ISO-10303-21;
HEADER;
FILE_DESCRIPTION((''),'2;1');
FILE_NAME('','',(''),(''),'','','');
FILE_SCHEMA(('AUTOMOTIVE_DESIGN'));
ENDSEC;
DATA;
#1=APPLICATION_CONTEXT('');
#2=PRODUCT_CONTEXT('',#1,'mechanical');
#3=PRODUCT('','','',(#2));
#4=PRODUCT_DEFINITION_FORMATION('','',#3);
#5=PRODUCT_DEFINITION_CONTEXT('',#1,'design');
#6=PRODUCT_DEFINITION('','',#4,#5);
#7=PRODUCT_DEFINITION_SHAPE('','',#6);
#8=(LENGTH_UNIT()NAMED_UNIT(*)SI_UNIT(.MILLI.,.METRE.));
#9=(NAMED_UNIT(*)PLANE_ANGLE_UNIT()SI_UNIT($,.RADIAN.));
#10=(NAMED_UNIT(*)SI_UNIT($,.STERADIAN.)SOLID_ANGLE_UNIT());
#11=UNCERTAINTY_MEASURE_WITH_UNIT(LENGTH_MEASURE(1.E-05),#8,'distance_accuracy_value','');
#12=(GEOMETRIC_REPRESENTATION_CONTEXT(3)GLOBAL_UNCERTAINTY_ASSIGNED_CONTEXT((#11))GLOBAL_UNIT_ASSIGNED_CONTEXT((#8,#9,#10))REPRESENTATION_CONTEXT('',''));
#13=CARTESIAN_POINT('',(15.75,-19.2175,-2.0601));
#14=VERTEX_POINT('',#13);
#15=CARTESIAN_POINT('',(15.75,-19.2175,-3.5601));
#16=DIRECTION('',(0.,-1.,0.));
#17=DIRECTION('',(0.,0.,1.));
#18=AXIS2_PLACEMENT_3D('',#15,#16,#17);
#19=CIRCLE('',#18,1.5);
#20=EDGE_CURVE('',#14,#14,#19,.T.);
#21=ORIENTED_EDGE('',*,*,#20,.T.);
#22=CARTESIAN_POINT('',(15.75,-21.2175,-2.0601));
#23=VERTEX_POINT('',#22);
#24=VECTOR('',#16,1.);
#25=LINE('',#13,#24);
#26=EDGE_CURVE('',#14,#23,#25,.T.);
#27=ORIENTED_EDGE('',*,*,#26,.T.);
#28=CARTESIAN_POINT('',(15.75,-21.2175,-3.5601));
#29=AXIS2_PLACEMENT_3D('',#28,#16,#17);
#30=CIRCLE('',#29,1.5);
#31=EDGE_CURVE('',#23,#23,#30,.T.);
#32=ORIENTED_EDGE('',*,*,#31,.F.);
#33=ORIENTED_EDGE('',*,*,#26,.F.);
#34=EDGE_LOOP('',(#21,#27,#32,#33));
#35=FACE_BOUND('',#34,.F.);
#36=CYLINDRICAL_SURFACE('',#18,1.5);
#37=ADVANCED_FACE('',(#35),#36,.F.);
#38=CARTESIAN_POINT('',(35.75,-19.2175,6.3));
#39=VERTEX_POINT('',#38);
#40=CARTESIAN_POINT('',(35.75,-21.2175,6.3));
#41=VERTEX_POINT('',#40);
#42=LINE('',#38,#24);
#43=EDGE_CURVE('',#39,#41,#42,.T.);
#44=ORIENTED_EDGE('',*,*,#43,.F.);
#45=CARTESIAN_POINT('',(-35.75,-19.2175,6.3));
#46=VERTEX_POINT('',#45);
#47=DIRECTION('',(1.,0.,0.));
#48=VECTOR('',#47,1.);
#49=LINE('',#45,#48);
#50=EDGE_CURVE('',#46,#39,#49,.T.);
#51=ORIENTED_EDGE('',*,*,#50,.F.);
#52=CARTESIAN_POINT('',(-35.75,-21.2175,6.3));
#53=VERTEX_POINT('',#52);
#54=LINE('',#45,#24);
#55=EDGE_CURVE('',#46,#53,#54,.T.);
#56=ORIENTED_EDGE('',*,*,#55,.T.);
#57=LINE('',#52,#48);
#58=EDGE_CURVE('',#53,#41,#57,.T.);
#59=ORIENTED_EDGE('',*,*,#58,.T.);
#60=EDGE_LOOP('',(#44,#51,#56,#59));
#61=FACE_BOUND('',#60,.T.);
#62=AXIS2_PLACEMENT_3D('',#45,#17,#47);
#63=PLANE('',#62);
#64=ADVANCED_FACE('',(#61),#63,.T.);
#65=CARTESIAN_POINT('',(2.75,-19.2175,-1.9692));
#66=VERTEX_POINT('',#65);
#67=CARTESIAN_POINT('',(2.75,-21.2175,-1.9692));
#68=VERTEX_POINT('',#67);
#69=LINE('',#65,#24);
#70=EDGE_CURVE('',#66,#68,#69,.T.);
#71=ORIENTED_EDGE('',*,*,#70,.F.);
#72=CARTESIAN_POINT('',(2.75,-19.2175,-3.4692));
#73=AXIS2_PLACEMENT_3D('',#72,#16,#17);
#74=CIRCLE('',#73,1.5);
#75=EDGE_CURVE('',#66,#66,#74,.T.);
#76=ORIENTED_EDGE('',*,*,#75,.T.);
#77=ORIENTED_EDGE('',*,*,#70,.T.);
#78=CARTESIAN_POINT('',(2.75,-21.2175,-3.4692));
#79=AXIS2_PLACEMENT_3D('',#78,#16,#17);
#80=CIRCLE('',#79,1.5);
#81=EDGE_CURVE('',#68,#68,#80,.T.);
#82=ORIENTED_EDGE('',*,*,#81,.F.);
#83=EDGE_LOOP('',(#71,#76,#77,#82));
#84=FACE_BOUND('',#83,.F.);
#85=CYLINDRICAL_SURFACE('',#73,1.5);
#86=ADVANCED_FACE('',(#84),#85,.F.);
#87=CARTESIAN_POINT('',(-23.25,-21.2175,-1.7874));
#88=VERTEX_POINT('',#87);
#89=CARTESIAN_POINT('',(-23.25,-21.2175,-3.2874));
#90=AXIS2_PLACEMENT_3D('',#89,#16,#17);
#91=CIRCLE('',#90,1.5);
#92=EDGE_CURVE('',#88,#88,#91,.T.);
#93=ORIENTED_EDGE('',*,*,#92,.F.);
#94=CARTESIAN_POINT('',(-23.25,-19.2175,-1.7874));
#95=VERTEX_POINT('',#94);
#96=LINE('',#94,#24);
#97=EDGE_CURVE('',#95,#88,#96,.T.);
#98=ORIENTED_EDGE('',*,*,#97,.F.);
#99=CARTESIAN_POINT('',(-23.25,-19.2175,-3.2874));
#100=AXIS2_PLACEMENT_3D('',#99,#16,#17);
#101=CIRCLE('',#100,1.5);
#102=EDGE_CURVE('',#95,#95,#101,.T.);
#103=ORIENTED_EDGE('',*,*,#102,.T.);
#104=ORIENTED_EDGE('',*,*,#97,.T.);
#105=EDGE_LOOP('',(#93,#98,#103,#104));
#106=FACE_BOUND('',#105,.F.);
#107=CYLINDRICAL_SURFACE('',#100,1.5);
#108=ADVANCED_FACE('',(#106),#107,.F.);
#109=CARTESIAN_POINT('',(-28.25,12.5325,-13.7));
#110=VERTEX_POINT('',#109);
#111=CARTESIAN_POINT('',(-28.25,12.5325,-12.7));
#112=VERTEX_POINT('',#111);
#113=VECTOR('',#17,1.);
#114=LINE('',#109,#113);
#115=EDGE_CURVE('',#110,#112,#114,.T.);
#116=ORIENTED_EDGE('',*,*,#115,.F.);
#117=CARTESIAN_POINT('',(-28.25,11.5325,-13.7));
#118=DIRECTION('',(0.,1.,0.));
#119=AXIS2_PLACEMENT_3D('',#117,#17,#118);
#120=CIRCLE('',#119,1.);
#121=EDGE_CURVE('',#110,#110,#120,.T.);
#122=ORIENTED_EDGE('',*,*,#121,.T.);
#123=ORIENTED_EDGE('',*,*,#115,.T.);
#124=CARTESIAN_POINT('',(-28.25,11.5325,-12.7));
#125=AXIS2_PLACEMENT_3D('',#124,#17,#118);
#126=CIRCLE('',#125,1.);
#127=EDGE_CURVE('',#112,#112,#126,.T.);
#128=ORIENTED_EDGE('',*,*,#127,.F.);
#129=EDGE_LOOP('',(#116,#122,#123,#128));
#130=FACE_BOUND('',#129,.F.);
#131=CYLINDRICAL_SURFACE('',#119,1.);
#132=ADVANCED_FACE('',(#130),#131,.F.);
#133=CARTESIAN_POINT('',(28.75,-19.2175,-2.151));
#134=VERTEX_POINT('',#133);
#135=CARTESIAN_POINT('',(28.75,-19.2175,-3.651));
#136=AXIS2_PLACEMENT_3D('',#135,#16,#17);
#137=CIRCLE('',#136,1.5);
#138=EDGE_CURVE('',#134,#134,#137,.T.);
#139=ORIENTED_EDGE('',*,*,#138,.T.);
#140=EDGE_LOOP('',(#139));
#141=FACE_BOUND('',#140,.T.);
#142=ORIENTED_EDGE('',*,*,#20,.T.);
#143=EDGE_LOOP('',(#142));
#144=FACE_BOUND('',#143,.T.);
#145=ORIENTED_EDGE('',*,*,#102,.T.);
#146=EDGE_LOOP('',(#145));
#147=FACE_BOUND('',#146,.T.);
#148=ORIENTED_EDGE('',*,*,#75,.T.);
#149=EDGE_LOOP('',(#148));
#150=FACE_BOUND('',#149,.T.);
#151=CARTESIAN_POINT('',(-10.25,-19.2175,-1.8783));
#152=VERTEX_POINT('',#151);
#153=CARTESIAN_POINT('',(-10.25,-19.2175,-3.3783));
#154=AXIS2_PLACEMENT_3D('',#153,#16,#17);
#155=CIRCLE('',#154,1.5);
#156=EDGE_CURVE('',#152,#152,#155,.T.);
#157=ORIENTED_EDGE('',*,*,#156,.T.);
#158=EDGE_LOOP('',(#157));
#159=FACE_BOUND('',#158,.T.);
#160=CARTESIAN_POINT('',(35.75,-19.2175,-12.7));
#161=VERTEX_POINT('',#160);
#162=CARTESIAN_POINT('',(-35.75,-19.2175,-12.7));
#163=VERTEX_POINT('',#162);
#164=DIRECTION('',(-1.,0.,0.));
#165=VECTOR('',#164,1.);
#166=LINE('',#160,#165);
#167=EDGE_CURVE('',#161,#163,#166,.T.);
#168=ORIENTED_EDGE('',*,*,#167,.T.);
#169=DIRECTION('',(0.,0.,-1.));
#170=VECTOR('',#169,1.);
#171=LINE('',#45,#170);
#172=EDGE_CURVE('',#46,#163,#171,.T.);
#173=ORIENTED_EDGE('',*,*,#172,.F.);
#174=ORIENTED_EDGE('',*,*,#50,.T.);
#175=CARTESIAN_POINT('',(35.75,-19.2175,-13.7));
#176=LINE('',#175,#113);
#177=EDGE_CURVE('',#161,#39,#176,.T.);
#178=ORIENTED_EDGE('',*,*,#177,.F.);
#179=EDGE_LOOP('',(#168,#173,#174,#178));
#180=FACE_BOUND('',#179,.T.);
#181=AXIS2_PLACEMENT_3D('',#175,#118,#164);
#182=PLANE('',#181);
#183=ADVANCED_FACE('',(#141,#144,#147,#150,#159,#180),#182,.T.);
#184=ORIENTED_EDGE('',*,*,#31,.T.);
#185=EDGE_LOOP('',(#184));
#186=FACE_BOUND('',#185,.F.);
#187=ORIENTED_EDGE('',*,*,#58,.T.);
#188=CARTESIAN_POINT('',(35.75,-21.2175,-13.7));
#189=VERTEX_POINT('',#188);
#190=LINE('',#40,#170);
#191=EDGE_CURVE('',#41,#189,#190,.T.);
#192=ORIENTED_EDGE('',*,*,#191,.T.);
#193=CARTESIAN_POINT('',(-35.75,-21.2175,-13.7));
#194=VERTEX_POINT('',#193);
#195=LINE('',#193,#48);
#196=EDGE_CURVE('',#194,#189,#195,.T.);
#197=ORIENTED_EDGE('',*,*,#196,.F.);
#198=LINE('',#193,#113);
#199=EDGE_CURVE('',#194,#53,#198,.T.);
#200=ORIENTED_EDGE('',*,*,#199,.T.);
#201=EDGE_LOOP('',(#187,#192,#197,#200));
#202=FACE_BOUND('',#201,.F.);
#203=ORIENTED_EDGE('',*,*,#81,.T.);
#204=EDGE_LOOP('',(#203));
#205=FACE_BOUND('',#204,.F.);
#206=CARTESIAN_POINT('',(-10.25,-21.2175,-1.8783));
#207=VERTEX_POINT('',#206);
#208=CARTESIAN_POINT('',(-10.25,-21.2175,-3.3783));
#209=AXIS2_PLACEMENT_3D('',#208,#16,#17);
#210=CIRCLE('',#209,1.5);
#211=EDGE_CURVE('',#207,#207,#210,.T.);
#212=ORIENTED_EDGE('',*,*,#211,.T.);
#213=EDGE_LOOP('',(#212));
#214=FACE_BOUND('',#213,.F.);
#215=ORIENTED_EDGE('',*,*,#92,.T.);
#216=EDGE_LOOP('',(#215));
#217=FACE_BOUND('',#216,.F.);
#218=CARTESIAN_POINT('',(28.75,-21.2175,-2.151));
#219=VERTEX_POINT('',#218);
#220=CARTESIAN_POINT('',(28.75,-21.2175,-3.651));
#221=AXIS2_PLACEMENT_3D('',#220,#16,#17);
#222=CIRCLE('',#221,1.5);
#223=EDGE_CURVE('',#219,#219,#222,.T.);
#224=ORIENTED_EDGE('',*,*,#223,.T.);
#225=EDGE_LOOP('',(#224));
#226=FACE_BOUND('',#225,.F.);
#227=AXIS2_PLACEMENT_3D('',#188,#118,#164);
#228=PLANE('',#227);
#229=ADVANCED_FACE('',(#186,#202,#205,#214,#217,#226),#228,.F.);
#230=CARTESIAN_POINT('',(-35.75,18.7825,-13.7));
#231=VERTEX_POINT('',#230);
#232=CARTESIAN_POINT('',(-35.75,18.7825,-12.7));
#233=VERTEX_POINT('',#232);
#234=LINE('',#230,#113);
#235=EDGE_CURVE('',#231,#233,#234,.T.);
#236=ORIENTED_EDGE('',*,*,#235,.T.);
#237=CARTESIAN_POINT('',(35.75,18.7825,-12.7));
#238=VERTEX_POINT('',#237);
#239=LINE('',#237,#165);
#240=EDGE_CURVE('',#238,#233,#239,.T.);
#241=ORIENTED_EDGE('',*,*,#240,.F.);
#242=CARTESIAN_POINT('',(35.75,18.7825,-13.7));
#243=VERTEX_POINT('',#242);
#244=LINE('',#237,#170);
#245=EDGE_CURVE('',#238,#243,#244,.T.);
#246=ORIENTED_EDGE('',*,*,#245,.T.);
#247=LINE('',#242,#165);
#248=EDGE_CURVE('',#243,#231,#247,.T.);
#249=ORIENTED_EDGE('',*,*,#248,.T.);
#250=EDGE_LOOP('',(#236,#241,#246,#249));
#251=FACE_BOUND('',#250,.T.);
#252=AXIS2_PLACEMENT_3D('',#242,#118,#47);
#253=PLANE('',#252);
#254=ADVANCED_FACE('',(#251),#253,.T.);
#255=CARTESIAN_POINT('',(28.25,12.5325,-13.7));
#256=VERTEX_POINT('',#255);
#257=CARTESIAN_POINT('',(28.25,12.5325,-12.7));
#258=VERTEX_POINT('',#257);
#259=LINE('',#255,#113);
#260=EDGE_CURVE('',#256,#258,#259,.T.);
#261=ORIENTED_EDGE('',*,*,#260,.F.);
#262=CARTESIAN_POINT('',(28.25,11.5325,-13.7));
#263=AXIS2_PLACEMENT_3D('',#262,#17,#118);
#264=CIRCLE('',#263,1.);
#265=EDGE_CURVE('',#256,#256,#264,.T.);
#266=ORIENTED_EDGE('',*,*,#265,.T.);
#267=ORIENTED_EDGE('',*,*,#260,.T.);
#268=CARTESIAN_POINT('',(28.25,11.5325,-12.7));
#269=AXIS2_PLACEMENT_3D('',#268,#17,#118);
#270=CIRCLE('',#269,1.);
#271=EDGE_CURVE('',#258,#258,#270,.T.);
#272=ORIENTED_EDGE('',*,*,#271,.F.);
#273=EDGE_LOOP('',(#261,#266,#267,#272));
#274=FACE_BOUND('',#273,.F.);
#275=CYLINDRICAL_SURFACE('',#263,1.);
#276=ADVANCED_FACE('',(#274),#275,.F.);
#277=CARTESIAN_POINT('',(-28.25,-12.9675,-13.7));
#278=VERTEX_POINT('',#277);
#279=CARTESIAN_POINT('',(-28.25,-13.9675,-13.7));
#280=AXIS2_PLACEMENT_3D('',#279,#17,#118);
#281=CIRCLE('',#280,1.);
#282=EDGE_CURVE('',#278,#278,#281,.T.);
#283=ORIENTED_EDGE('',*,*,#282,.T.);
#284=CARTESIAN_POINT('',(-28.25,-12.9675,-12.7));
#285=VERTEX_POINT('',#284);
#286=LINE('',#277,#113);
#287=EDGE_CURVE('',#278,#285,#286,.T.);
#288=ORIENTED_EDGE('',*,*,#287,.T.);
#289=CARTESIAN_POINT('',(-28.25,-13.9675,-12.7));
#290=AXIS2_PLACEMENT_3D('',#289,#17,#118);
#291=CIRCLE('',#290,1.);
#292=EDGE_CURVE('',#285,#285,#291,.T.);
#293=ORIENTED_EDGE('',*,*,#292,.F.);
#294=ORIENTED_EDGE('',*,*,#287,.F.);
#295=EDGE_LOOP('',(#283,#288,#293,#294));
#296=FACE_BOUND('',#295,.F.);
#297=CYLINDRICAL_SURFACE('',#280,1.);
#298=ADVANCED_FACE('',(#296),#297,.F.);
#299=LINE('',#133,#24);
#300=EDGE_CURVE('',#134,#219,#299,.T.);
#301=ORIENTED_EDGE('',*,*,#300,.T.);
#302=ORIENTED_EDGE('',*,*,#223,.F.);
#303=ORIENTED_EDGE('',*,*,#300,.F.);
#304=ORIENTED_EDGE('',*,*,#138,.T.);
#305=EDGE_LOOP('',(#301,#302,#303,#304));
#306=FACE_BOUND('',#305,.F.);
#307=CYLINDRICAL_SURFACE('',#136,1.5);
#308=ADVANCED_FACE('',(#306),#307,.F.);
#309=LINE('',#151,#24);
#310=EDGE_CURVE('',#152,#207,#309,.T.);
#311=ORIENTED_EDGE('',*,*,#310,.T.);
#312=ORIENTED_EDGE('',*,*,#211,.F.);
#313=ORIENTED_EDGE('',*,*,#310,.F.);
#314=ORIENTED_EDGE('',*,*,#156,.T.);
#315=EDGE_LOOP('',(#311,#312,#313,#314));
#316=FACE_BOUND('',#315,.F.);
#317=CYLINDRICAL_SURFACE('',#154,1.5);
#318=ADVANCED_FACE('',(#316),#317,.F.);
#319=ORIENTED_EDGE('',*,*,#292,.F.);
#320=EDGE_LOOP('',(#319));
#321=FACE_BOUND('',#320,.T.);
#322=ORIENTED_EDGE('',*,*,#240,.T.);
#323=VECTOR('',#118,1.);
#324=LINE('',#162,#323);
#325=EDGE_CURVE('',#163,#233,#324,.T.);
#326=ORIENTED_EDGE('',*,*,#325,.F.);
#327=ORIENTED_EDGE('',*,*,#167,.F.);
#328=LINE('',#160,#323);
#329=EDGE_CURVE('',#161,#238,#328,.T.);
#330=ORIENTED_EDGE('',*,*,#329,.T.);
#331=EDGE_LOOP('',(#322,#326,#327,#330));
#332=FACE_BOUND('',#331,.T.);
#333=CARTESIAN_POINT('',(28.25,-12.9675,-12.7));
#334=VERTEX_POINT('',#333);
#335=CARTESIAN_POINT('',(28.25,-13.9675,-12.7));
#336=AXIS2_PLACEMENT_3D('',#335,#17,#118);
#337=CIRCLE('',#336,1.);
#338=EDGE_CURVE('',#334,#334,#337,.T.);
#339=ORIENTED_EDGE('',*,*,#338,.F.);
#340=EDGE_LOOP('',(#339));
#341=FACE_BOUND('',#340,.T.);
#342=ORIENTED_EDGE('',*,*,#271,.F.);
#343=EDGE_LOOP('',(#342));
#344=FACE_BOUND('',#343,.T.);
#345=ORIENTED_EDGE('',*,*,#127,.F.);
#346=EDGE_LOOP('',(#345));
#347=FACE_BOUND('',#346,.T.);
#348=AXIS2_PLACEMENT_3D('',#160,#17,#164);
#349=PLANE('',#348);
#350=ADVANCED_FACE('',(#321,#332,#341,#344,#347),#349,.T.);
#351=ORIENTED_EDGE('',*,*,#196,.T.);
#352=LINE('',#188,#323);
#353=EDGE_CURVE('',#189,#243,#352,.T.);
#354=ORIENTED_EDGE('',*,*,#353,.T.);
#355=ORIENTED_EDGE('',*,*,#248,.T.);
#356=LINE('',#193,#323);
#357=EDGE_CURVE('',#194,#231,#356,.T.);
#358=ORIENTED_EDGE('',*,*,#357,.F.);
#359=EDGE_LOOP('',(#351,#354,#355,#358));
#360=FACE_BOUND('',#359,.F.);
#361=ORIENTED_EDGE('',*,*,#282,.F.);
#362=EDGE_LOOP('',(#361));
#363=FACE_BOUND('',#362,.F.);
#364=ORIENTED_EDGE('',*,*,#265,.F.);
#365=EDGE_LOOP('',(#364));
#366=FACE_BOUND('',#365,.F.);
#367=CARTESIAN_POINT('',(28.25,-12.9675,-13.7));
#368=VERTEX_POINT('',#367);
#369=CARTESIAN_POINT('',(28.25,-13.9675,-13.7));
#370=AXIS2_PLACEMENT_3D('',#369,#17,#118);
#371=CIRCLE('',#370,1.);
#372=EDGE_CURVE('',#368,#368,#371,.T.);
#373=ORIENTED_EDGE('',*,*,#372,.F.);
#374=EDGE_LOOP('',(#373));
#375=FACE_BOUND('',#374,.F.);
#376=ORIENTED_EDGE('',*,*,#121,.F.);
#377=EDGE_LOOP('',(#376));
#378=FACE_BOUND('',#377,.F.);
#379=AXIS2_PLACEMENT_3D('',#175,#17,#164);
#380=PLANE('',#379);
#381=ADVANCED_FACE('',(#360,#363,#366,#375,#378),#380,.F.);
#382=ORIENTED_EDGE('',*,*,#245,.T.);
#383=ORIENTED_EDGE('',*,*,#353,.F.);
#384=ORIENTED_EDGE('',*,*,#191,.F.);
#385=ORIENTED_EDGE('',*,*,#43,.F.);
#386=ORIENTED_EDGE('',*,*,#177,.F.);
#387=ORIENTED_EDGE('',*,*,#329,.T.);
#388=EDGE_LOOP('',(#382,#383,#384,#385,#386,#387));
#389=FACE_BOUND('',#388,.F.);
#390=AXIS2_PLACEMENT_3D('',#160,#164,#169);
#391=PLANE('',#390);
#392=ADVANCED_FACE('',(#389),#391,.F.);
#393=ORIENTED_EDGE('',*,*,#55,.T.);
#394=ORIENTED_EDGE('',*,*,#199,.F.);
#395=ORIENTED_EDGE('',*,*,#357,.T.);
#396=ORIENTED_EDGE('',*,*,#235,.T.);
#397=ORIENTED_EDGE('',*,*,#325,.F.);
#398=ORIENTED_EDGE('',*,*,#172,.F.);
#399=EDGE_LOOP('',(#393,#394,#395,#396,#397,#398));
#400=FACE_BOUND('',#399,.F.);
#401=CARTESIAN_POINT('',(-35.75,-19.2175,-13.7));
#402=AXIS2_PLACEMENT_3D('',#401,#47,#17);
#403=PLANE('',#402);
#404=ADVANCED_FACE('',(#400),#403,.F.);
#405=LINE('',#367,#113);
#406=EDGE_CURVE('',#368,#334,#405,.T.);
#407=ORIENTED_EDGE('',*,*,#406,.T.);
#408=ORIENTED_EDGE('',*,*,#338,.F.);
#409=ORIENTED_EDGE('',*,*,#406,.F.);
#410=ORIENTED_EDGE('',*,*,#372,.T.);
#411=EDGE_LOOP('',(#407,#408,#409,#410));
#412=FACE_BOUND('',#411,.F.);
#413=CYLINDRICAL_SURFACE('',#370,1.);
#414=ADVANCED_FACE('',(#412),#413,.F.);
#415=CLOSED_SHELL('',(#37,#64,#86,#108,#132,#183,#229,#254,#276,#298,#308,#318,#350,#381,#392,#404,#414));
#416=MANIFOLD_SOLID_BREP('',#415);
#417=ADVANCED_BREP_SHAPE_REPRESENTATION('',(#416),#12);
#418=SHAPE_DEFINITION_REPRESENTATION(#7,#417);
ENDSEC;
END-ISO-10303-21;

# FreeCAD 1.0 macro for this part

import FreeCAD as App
import Part
import Sketcher


def add_polygon(sketch, points):
    """Adds a closed chain of lines whose ends are joined by coincident constraints."""
    first, n = sketch.GeometryCount, len(points)
    for a, b in zip(points, points[1:] + points[:1]):
        sketch.addGeometry(Part.LineSegment(App.Vector(*a, 0), App.Vector(*b, 0)), False)
    for i in range(n):
        sketch.addConstraint(Sketcher.Constraint("Coincident", first + i, 2, first + (i + 1) % n, 1))

doc = App.newDocument("Part")
params = doc.addObject("Spreadsheet::Sheet", "Params")
for row, (alias, value) in enumerate([
    ("sketch1_height", "20 mm"),
    ("sketch1_width", "71.5 mm"),
    ("pad1_length", "2 mm"),
    ("sketch2_height", "1 mm"),
    ("sketch2_width", "71.5 mm"),
    ("pad2_length", "38 mm"),
    ("sketch3_diameter", "3 mm"),
    ("hole_diameter", "3 mm"),
    ("hole_depth", "2 mm"),
    ("sketch4_diameter", "2 mm"),
    ("hole2_diameter", "2 mm"),
    ("hole2_depth", "2 mm"),
], start=1):
    params.set(f"A{row}", alias)
    params.set(f"B{row}", "=" + value)
    params.setAlias(f"B{row}", alias)

body = doc.addObject("PartDesign::Body", "Body")

# Sketch on XZ plane
sketch1 = doc.addObject("Sketcher::SketchObject", "Sketch")
body.addObject(sketch1)
sketch1.AttachmentSupport = (doc.XZ_Plane, [""])
sketch1.MapMode = "FlatFace"
sketch1.AttachmentOffset = App.Placement(App.Vector(0, 0, 19.2175), App.Rotation())
add_polygon(sketch1, [(36, -14), (-36, -14), (-36, 6), (36, 6)])  # lines 0-3
sketch1.addConstraint(Sketcher.Constraint("Horizontal", 0))
sketch1.addConstraint(Sketcher.Constraint("Vertical", 1))
sketch1.addConstraint(Sketcher.Constraint("Horizontal", 2))
sketch1.addConstraint(Sketcher.Constraint("Vertical", 3))
sketch1.addConstraint(Sketcher.Constraint("DistanceY", 1, 1, 1, 2, 20.0))
sketch1.addConstraint(Sketcher.Constraint("DistanceX", 0, 2, 0, 1, 71.5))
sketch1.addConstraint(Sketcher.Constraint("DistanceY", 0, 2, -1, 1, 13.7))
sketch1.addConstraint(Sketcher.Constraint("DistanceX", 0, 2, -1, 1, 35.75))
sketch1.setExpression("Constraints[8]", "Params.sketch1_height")
sketch1.setExpression("Constraints[9]", "Params.sketch1_width")
pad1 = doc.addObject("PartDesign::Pad", "Pad")
body.addObject(pad1)
pad1.Profile = sketch1
pad1.setExpression("Length", "Params.pad1_length")

# Sketch on XZ plane
sketch2 = doc.addObject("Sketcher::SketchObject", "Sketch001")
body.addObject(sketch2)
sketch2.AttachmentSupport = (doc.XZ_Plane, [""])
sketch2.MapMode = "FlatFace"
sketch2.AttachmentOffset = App.Placement(App.Vector(0, 0, 19.2175), App.Rotation())
add_polygon(sketch2, [(35.8, -12.7), (35.8, -13.7), (-35.8, -13.7), (-35.8, -12.7)])  # lines 0-3
sketch2.addConstraint(Sketcher.Constraint("Vertical", 0))
sketch2.addConstraint(Sketcher.Constraint("Horizontal", 1))
sketch2.addConstraint(Sketcher.Constraint("Vertical", 2))
sketch2.addConstraint(Sketcher.Constraint("Horizontal", 3))
sketch2.addConstraint(Sketcher.Constraint("DistanceY", 0, 2, 0, 1, 1.0))
sketch2.addConstraint(Sketcher.Constraint("DistanceX", 1, 2, 1, 1, 71.5))
sketch2.addConstraint(Sketcher.Constraint("DistanceY", 0, 2, -1, 1, 13.7))
sketch2.addConstraint(Sketcher.Constraint("DistanceX", -1, 1, 0, 2, 35.75))
sketch2.setExpression("Constraints[8]", "Params.sketch2_height")
sketch2.setExpression("Constraints[9]", "Params.sketch2_width")
pad2 = doc.addObject("PartDesign::Pad", "Pad001")
body.addObject(pad2)
pad2.Profile = sketch2
pad2.setExpression("Length", "Params.pad2_length")
pad2.Reversed = True

# Sketch on XZ plane
sketch3 = doc.addObject("Sketcher::SketchObject", "Sketch002")
body.addObject(sketch3)
sketch3.AttachmentSupport = (doc.XZ_Plane, [""])
sketch3.MapMode = "FlatFace"
sketch3.AttachmentOffset = App.Placement(App.Vector(0, 0, 19.2175), App.Rotation())
sketch3.addGeometry(Part.Circle(App.Vector(28.8, -3.7, 0), App.Vector(0, 0, 1), 1.5), False)
sketch3.addGeometry(Part.Circle(App.Vector(15.8, -3.6, 0), App.Vector(0, 0, 1), 1.5), False)
sketch3.addGeometry(Part.Circle(App.Vector(2.8, -3.5, 0), App.Vector(0, 0, 1), 1.5), False)
sketch3.addGeometry(Part.Circle(App.Vector(-10.2, -3.4, 0), App.Vector(0, 0, 1), 1.5), False)
sketch3.addGeometry(Part.Circle(App.Vector(-23.2, -3.3, 0), App.Vector(0, 0, 1), 1.5), False)
sketch3.addConstraint(Sketcher.Constraint("Equal", 0, 1))
sketch3.addConstraint(Sketcher.Constraint("Equal", 1, 2))
sketch3.addConstraint(Sketcher.Constraint("Equal", 2, 3))
sketch3.addConstraint(Sketcher.Constraint("Equal", 3, 4))
sketch3.addConstraint(Sketcher.Constraint("Diameter", 0, 3.0))
sketch3.addConstraint(Sketcher.Constraint("DistanceX", 1, 3, 0, 3, 13.0))
sketch3.addConstraint(Sketcher.Constraint("DistanceX", 2, 3, 1, 3, 13.0))
sketch3.addConstraint(Sketcher.Constraint("DistanceX", 3, 3, 2, 3, 13.0))
sketch3.addConstraint(Sketcher.Constraint("DistanceX", 4, 3, 3, 3, 13.0))
sketch3.addConstraint(Sketcher.Constraint("DistanceX", -1, 1, 0, 3, 28.75))
sketch3.addConstraint(Sketcher.Constraint("DistanceY", 1, 3, -1, 1, 3.56))
sketch3.addConstraint(Sketcher.Constraint("DistanceY", 0, 3, -1, 1, 3.651))
sketch3.addConstraint(Sketcher.Constraint("DistanceY", 1, 3, 2, 3, 0.091))
sketch3.addConstraint(Sketcher.Constraint("DistanceY", 2, 3, 3, 3, 0.091))
sketch3.addConstraint(Sketcher.Constraint("DistanceY", 3, 3, 4, 3, 0.091))
sketch3.setExpression("Constraints[4]", "Params.sketch3_diameter")
doc.recompute()
hole = doc.addObject("PartDesign::Hole", "Hole")
body.addObject(hole)
hole.Profile = sketch3
hole.ThreadType = "None"
hole.setExpression("Diameter", "Params.hole_diameter")
hole.DepthType = "Dimension"
hole.setExpression("Depth", "Params.hole_depth")
hole.DrillPoint = "Angled"
hole.DrillPointAngle = 118
hole.Reversed = True

# Sketch on XY plane
sketch4 = doc.addObject("Sketcher::SketchObject", "Sketch003")
body.addObject(sketch4)
sketch4.AttachmentSupport = (doc.XY_Plane, [""])
sketch4.MapMode = "FlatFace"
sketch4.AttachmentOffset = App.Placement(App.Vector(0, 0, -13.7), App.Rotation())
sketch4.addGeometry(Part.Circle(App.Vector(28.2, 11.5, 0), App.Vector(0, 0, 1), 1), False)
sketch4.addGeometry(Part.Circle(App.Vector(28.2, -14, 0), App.Vector(0, 0, 1), 1), False)
sketch4.addGeometry(Part.Circle(App.Vector(-28.2, 11.5, 0), App.Vector(0, 0, 1), 1), False)
sketch4.addGeometry(Part.Circle(App.Vector(-28.2, -14, 0), App.Vector(0, 0, 1), 1), False)
sketch4.addConstraint(Sketcher.Constraint("Equal", 0, 1))
sketch4.addConstraint(Sketcher.Constraint("Equal", 1, 2))
sketch4.addConstraint(Sketcher.Constraint("Equal", 2, 3))
sketch4.addConstraint(Sketcher.Constraint("Symmetric", 0, 3, 2, 3, -2))
sketch4.addConstraint(Sketcher.Constraint("Symmetric", 1, 3, 3, 3, -2))
sketch4.addConstraint(Sketcher.Constraint("Vertical", 0, 3, 1, 3))
sketch4.addConstraint(Sketcher.Constraint("Diameter", 0, 2.0))
sketch4.addConstraint(Sketcher.Constraint("DistanceY", 1, 3, 0, 3, 25.5))
sketch4.addConstraint(Sketcher.Constraint("DistanceX", 2, 3, 0, 3, 56.5))
sketch4.addConstraint(Sketcher.Constraint("DistanceY", -1, 1, 0, 3, 11.5325))
sketch4.setExpression("Constraints[6]", "Params.sketch4_diameter")
doc.recompute()
hole2 = doc.addObject("PartDesign::Hole", "Hole001")
body.addObject(hole2)
hole2.Profile = sketch4
hole2.ThreadType = "None"
hole2.setExpression("Diameter", "Params.hole2_diameter")
hole2.DepthType = "Dimension"
hole2.setExpression("Depth", "Params.hole2_depth")
hole2.DrillPoint = "Angled"
hole2.DrillPointAngle = 118
hole2.Reversed = True

doc.recompute()
